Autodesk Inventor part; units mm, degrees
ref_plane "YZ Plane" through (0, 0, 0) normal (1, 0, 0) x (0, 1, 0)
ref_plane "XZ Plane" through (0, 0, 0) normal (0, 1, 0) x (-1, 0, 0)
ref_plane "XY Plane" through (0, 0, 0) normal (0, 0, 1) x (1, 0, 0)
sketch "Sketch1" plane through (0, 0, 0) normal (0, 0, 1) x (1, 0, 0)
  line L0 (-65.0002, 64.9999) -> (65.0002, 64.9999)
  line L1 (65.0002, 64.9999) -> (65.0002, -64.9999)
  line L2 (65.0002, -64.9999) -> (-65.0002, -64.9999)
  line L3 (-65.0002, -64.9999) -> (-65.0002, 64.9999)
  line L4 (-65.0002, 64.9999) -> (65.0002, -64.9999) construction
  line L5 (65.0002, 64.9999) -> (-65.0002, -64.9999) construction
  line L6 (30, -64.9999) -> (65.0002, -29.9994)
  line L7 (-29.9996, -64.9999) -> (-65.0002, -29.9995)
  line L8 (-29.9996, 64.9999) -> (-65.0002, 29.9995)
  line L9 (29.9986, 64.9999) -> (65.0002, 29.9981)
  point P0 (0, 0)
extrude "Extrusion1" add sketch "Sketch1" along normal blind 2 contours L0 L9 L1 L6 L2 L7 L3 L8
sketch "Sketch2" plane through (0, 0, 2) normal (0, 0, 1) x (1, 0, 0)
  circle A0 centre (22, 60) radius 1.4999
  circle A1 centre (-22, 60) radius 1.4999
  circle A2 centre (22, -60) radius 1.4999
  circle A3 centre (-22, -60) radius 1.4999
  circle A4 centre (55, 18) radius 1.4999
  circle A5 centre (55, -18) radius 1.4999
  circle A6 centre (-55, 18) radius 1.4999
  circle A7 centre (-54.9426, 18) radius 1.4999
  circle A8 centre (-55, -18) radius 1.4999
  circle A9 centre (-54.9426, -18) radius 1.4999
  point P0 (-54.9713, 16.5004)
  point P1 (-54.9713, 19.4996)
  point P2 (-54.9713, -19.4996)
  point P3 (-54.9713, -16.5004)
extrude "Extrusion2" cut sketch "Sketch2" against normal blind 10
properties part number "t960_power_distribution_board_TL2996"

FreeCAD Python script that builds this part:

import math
import FreeCAD as App
import Part
import Sketcher
Q = App.Units.Quantity


def add_polygon(sketch, points):
    """Adds a closed chain of lines whose ends are joined by coincident constraints."""
    first, n = sketch.GeometryCount, len(points)
    for a, b in zip(points, points[1:] + points[:1]):
        sketch.addGeometry(Part.LineSegment(App.Vector(*a, 0), App.Vector(*b, 0)), False)
    for i in range(n):
        sketch.addConstraint(Sketcher.Constraint("Coincident", first + i, 2, first + (i + 1) % n, 1))

doc = App.newDocument("Part")
body = doc.addObject("PartDesign::Body", "Body")

sketch1 = body.newObject("Sketcher::SketchObject", "Sketch")
sketch1.AttachmentSupport = (doc.getObject("XY_Plane"), [""])
sketch1.MapMode = "FlatFace"
add_polygon(sketch1, [(30, 65), (-30, 65), (-65, 30), (-65, -30), (-30, -65), (30, -65), (65, -30), (65, 30)])
sketch1.addConstraint([
    Sketcher.Constraint("Horizontal", 0),
    Sketcher.Constraint("Vertical", 2),
    Sketcher.Constraint("Horizontal", 4),
    Sketcher.Constraint("Vertical", 6),
    Sketcher.Constraint("Symmetric", 0, 2, 4, 2, -1, 1),
    Sketcher.Constraint("Symmetric", 1, 2, 5, 2, -1, 1),
    Sketcher.Constraint("Perpendicular", 1, 3),
    Sketcher.Constraint("Perpendicular", 5, 7),
    Sketcher.Constraint("Horizontal", 2, 2, 5, 2),
    Sketcher.Constraint("Vertical", 0, 2, 3, 2),
    Sketcher.Constraint("DistanceY", -1, 1, 0, 2, Q("65 mm")),
    Sketcher.Constraint("DistanceX", -1, 1, 4, 2, Q("30 mm")),
    Sketcher.Constraint("DistanceY", 2, 2, 2, 1, Q("59.999 mm")),
    Sketcher.Constraint("DistanceX", 0, 2, 0, 1, Q("59.9982 mm")),
])
pad1 = body.newObject("PartDesign::Pad", "Pad")
pad1.Profile = sketch1
pad1.Length = 2

sketch2 = body.newObject("Sketcher::SketchObject", "Sketch001")
sketch2.AttachmentSupport = (doc.getObject("XY_Plane"), [""])
sketch2.MapMode = "FlatFace"
sketch2.AttachmentOffset = App.Placement(App.Vector(0, 0, 2), App.Rotation())
sketch2.addGeometry([
    Part.Circle(App.Vector(22, 60, 0), App.Vector(0, 0, 1), 1.5),
    Part.Circle(App.Vector(-22, 60, 0), App.Vector(0, 0, 1), 1.5),
    Part.Circle(App.Vector(22, -60, 0), App.Vector(0, 0, 1), 1.5),
    Part.Circle(App.Vector(-22, -60, 0), App.Vector(0, 0, 1), 1.5),
    Part.Circle(App.Vector(55, 18, 0), App.Vector(0, 0, 1), 1.5),
    Part.Circle(App.Vector(55, -18, 0), App.Vector(0, 0, 1), 1.5),
    Part.ArcOfCircle(Part.Circle(App.Vector(-54.9, 18, 0), App.Vector(0, 0, 1), 1.5), math.radians(-91), math.radians(91)),
    Part.ArcOfCircle(Part.Circle(App.Vector(-55, 18, 0), App.Vector(0, 0, 1), 1.5), math.radians(89), math.radians(271)),
    Part.ArcOfCircle(Part.Circle(App.Vector(-54.9, -18, 0), App.Vector(0, 0, 1), 1.5), math.radians(-91), math.radians(91)),
    Part.ArcOfCircle(Part.Circle(App.Vector(-55, -18, 0), App.Vector(0, 0, 1), 1.5), math.radians(89), math.radians(271)),
], False)
sketch2.addConstraint([
    Sketcher.Constraint("Coincident", 6, 1, 7, 2),
    Sketcher.Constraint("Coincident", 7, 1, 6, 2),
    Sketcher.Constraint("Coincident", 8, 1, 9, 2),
    Sketcher.Constraint("Coincident", 9, 1, 8, 2),
    Sketcher.Constraint("Equal", 0, 1),
    Sketcher.Constraint("Equal", 1, 2),
    Sketcher.Constraint("Equal", 2, 3),
    Sketcher.Constraint("Equal", 3, 4),
    Sketcher.Constraint("Equal", 4, 5),
    Sketcher.Constraint("Equal", 5, 6),
    Sketcher.Constraint("Equal", 6, 7),
    Sketcher.Constraint("Equal", 7, 8),
    Sketcher.Constraint("Equal", 8, 9),
    Sketcher.Constraint("Symmetric", 1, 3, 2, 3, -1, 1),
    Sketcher.Constraint("Symmetric", 0, 3, 3, 3, -1, 1),
    Sketcher.Constraint("Symmetric", 5, 3, 7, 3, -1, 1),
    Sketcher.Constraint("Symmetric", 4, 3, 9, 3, -1, 1),
    Sketcher.Constraint("Symmetric", 0, 3, 1, 3, -2),
    Sketcher.Constraint("Symmetric", 4, 3, 7, 3, -2),
    Sketcher.Constraint("Symmetric", 6, 3, 8, 3, -1),
    Sketcher.Constraint("Horizontal", 4, 3, 6, 3),
    Sketcher.Constraint("Radius", 6, Q("1.5 mm")),
    Sketcher.Constraint("DistanceX", -1, 1, 0, 3, Q("22 mm")),
    Sketcher.Constraint("DistanceY", -1, 1, 0, 3, Q("60 mm")),
    Sketcher.Constraint("DistanceX", -1, 1, 4, 3, Q("55 mm")),
    Sketcher.Constraint("DistanceY", -1, 1, 4, 3, Q("18 mm")),
    Sketcher.Constraint("DistanceX", 6, 3, -1, 1, Q("54.9426 mm")),
])
pocket1 = body.newObject("PartDesign::Pocket", "Pocket")
pocket1.Profile = sketch2
pocket1.Length = 10

doc.recompute()
